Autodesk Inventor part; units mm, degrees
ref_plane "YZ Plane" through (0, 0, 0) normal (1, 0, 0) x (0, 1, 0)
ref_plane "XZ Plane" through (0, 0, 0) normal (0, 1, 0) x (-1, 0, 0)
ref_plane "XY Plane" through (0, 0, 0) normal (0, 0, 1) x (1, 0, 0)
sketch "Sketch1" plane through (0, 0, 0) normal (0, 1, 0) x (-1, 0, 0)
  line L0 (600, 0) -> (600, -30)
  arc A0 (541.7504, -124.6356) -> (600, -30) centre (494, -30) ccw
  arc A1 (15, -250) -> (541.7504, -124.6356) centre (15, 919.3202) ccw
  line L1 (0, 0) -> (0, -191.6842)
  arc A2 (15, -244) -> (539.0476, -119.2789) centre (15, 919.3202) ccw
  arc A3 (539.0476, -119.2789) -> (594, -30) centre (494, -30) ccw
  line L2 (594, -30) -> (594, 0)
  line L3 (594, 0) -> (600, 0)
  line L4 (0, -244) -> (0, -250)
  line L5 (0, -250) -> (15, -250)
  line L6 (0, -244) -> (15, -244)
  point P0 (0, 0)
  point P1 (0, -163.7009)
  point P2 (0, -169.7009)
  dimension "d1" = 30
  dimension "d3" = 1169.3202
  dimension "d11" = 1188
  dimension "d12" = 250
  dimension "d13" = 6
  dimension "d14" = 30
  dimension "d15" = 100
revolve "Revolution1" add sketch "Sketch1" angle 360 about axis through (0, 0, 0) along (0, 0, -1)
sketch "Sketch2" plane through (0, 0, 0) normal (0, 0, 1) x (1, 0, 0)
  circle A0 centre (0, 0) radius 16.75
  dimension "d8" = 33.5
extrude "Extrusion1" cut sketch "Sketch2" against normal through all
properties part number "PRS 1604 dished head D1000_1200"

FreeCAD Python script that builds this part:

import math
import FreeCAD as App
import Part
import Sketcher
from FreeCAD import Vector

doc = App.newDocument("Part")
params = doc.addObject("Spreadsheet::Sheet", "Params")
for row, (alias, value) in enumerate([
    ("sketch1_radius", "100 mm"),
    ("sketch1_width", "6 mm"),
    ("sketch1_height", "30 mm"),
    ("sketch1_width2", "15 mm"),
    ("revolution_angle", "360 deg"),
    ("sketch2_diameter", "33.5 mm"),
], start=1):
    params.set(f"A{row}", alias)
    params.set(f"B{row}", "=" + value)
    params.setAlias(f"B{row}", alias)

body = doc.addObject("PartDesign::Body", "Body")

# Sketch on XZ plane
sketch1 = doc.addObject("Sketcher::SketchObject", "Sketch")
body.addObject(sketch1)
sketch1.AttachmentSupport = (doc.XZ_Plane, [""])
sketch1.MapMode = "FlatFace"
sketch1.addGeometry(Part.LineSegment(Vector(-600, -30, 0), Vector(-600, 0, 0)), False)
sketch1.addGeometry(Part.LineSegment(Vector(-600, 0, 0), Vector(-594, 0, 0)), False)
sketch1.addGeometry(Part.LineSegment(Vector(-594, 0, 0), Vector(-594, -30, 0)), False)
sketch1.addGeometry(Part.ArcOfCircle(Part.Circle(Vector(-494, -30, 0), Vector(0, 0, 1), 100), math.radians(180), math.radians(243)), False)
sketch1.addGeometry(Part.ArcOfCircle(Part.Circle(Vector(-15, 919, 0), Vector(0, 0, 1), 1163), math.radians(-117), math.radians(-90)), False)
sketch1.addGeometry(Part.LineSegment(Vector(-15, -244, 0), Vector(0, -244, 0)), False)
sketch1.addGeometry(Part.LineSegment(Vector(0, -244, 0), Vector(0, -250, 0)), False)
sketch1.addGeometry(Part.LineSegment(Vector(0, -250, 0), Vector(-15, -250, 0)), False)
sketch1.addGeometry(Part.ArcOfCircle(Part.Circle(Vector(-15, 919, 0), Vector(0, 0, 1), 1169), math.radians(-117), math.radians(-90)), False)
sketch1.addGeometry(Part.ArcOfCircle(Part.Circle(Vector(-494, -30, 0), Vector(0, 0, 1), 106), math.radians(180), math.radians(243)), False)
sketch1.addConstraint(Sketcher.Constraint("Coincident", 0, 2, 1, 1))
sketch1.addConstraint(Sketcher.Constraint("Coincident", 1, 2, 2, 1))
sketch1.addConstraint(Sketcher.Constraint("Tangent", 2, 2, 3, 1))
sketch1.addConstraint(Sketcher.Constraint("Tangent", 3, 2, 4, 1))
sketch1.addConstraint(Sketcher.Constraint("Tangent", 4, 2, 5, 1))
sketch1.addConstraint(Sketcher.Constraint("Coincident", 5, 2, 6, 1))
sketch1.addConstraint(Sketcher.Constraint("Coincident", 6, 2, 7, 1))
sketch1.addConstraint(Sketcher.Constraint("Tangent", 7, 2, 8, 2))
sketch1.addConstraint(Sketcher.Constraint("Tangent", 8, 1, 9, 2))
sketch1.addConstraint(Sketcher.Constraint("Tangent", 9, 1, 0, 1))
sketch1.addConstraint(Sketcher.Constraint("Vertical", 0))
sketch1.addConstraint(Sketcher.Constraint("Horizontal", 1))
sketch1.addConstraint(Sketcher.Constraint("Vertical", 2))
sketch1.addConstraint(Sketcher.Constraint("Horizontal", 5))
sketch1.addConstraint(Sketcher.Constraint("Vertical", 6))
sketch1.addConstraint(Sketcher.Constraint("Horizontal", 7))
sketch1.addConstraint(Sketcher.Constraint("Coincident", 8, 3, 4, 3))
sketch1.addConstraint(Sketcher.Constraint("Coincident", 9, 3, 3, 3))
sketch1.addConstraint(Sketcher.Constraint("PointOnObject", 0, 2, -1))
sketch1.addConstraint(Sketcher.Constraint("PointOnObject", 5, 2, -2))
sketch1.addConstraint(Sketcher.Constraint("Radius", 3, 100.0))
sketch1.addConstraint(Sketcher.Constraint("DistanceX", 1, 1, 1, 2, 6.0))
sketch1.addConstraint(Sketcher.Constraint("DistanceY", 0, 1, 0, 2, 30.0))
sketch1.addConstraint(Sketcher.Constraint("DistanceY", 6, 2, -1, 1, 250.0))
sketch1.addConstraint(Sketcher.Constraint("Radius", 8, 1169.3202))
sketch1.addConstraint(Sketcher.Constraint("DistanceX", 5, 1, 5, 2, 15.0))
sketch1.setExpression("Constraints[20]", "Params.sketch1_radius")
sketch1.setExpression("Constraints[21]", "Params.sketch1_width")
sketch1.setExpression("Constraints[22]", "Params.sketch1_height")
sketch1.setExpression("Constraints[25]", "Params.sketch1_width2")
revolution = doc.addObject("PartDesign::Revolution", "Revolution")
body.addObject(revolution)
revolution.Profile = sketch1
revolution.ReferenceAxis = (sketch1, ["V_Axis"])
revolution.setExpression("Angle", "Params.revolution_angle")

# Sketch on XY plane
sketch2 = doc.addObject("Sketcher::SketchObject", "Sketch001")
body.addObject(sketch2)
sketch2.AttachmentSupport = (doc.XY_Plane, [""])
sketch2.MapMode = "FlatFace"
sketch2.addGeometry(Part.Circle(Vector(0, 0, 0), Vector(0, 0, 1), 17), False)
sketch2.addConstraint(Sketcher.Constraint("Coincident", 0, 3, -1, 1))
sketch2.addConstraint(Sketcher.Constraint("Diameter", 0, 33.5))
sketch2.setExpression("Constraints[1]", "Params.sketch2_diameter")
pocket1 = doc.addObject("PartDesign::Pocket", "Pocket")
body.addObject(pocket1)
pocket1.Profile = sketch2
pocket1.Type = "ThroughAll"

doc.recompute()
